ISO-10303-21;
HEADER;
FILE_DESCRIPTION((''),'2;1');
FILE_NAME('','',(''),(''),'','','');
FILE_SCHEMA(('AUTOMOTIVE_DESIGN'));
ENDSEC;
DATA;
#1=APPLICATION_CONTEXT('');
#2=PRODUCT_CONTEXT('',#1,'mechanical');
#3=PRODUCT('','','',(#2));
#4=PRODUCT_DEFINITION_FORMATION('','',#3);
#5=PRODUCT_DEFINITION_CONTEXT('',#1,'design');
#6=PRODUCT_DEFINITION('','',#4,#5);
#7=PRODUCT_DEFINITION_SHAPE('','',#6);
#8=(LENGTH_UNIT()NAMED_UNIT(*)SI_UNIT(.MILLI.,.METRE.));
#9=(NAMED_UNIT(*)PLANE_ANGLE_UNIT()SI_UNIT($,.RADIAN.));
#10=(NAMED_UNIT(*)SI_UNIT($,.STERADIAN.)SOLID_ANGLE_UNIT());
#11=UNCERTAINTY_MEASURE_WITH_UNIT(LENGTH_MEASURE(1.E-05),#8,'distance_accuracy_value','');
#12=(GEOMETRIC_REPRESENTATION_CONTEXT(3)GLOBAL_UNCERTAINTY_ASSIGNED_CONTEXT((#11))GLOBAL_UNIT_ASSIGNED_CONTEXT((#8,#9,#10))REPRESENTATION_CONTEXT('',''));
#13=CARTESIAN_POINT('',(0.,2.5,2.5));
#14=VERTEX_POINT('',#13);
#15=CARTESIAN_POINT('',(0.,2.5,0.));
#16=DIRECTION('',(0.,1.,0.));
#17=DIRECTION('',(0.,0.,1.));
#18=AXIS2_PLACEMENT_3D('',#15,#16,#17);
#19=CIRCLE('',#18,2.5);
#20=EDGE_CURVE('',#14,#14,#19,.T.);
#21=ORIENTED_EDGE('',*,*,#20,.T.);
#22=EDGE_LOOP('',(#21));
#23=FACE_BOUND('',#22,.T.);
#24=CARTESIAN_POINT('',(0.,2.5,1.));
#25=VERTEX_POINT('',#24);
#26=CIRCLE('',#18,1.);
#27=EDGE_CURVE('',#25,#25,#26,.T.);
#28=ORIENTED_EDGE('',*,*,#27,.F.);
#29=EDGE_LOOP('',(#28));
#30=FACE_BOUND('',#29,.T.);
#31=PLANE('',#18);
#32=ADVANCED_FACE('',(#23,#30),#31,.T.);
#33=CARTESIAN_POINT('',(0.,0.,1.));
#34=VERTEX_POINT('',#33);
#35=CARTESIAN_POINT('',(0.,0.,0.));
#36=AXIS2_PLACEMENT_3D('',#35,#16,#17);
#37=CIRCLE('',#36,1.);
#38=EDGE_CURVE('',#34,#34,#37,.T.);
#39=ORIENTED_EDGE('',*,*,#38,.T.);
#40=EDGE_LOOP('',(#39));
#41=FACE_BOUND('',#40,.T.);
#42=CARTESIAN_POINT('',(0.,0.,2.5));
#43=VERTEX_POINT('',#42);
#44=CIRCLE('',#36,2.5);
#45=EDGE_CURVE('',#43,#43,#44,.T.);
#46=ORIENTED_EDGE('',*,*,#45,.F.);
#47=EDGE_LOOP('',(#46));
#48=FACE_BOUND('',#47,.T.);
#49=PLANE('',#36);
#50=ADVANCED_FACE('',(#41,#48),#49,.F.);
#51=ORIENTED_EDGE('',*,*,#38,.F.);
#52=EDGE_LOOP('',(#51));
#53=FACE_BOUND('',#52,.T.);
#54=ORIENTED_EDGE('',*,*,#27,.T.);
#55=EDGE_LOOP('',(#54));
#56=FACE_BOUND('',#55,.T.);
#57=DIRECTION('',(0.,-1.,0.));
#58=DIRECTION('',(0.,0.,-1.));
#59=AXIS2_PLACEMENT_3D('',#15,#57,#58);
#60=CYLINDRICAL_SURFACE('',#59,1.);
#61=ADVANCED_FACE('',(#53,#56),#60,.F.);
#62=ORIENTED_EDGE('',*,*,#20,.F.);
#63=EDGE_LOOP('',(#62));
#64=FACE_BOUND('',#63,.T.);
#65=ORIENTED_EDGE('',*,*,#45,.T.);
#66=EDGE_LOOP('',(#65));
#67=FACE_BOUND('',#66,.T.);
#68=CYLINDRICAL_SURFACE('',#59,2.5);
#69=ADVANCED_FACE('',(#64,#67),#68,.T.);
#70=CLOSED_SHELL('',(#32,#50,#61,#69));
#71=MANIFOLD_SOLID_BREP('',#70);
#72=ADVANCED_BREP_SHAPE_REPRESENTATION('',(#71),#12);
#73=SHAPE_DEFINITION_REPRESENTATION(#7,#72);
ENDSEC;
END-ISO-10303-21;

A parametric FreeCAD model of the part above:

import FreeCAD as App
import Part
import Sketcher
from FreeCAD import Vector
Q = App.Units.Quantity

doc = App.newDocument("Part")
body = doc.addObject("PartDesign::Body", "Body")

sketch1 = doc.addObject("Sketcher::SketchObject", "Sketch")
body.addObject(sketch1)
sketch1.AttachmentSupport = (doc.XZ_Plane, [""])
sketch1.MapMode = "FlatFace"
sketch1.addGeometry([
    Part.Circle(Vector(0, 0, 0), Vector(0, 0, 1), 2.5),
    Part.Circle(Vector(0, 0, 0), Vector(0, 0, 1), 1),
], False)
sketch1.addConstraint([
    Sketcher.Constraint("Coincident", 0, 3, -1, 1),
    Sketcher.Constraint("Coincident", 1, 3, -1, 1),
    Sketcher.Constraint("Diameter", 0, Q("5 mm")),
    Sketcher.Constraint("Diameter", 1, Q("2 mm")),
])
pad1 = doc.addObject("PartDesign::Pad", "Pad")
body.addObject(pad1)
pad1.Profile = sketch1
pad1.Length = 2.5
pad1.Reversed = True

doc.recompute()
